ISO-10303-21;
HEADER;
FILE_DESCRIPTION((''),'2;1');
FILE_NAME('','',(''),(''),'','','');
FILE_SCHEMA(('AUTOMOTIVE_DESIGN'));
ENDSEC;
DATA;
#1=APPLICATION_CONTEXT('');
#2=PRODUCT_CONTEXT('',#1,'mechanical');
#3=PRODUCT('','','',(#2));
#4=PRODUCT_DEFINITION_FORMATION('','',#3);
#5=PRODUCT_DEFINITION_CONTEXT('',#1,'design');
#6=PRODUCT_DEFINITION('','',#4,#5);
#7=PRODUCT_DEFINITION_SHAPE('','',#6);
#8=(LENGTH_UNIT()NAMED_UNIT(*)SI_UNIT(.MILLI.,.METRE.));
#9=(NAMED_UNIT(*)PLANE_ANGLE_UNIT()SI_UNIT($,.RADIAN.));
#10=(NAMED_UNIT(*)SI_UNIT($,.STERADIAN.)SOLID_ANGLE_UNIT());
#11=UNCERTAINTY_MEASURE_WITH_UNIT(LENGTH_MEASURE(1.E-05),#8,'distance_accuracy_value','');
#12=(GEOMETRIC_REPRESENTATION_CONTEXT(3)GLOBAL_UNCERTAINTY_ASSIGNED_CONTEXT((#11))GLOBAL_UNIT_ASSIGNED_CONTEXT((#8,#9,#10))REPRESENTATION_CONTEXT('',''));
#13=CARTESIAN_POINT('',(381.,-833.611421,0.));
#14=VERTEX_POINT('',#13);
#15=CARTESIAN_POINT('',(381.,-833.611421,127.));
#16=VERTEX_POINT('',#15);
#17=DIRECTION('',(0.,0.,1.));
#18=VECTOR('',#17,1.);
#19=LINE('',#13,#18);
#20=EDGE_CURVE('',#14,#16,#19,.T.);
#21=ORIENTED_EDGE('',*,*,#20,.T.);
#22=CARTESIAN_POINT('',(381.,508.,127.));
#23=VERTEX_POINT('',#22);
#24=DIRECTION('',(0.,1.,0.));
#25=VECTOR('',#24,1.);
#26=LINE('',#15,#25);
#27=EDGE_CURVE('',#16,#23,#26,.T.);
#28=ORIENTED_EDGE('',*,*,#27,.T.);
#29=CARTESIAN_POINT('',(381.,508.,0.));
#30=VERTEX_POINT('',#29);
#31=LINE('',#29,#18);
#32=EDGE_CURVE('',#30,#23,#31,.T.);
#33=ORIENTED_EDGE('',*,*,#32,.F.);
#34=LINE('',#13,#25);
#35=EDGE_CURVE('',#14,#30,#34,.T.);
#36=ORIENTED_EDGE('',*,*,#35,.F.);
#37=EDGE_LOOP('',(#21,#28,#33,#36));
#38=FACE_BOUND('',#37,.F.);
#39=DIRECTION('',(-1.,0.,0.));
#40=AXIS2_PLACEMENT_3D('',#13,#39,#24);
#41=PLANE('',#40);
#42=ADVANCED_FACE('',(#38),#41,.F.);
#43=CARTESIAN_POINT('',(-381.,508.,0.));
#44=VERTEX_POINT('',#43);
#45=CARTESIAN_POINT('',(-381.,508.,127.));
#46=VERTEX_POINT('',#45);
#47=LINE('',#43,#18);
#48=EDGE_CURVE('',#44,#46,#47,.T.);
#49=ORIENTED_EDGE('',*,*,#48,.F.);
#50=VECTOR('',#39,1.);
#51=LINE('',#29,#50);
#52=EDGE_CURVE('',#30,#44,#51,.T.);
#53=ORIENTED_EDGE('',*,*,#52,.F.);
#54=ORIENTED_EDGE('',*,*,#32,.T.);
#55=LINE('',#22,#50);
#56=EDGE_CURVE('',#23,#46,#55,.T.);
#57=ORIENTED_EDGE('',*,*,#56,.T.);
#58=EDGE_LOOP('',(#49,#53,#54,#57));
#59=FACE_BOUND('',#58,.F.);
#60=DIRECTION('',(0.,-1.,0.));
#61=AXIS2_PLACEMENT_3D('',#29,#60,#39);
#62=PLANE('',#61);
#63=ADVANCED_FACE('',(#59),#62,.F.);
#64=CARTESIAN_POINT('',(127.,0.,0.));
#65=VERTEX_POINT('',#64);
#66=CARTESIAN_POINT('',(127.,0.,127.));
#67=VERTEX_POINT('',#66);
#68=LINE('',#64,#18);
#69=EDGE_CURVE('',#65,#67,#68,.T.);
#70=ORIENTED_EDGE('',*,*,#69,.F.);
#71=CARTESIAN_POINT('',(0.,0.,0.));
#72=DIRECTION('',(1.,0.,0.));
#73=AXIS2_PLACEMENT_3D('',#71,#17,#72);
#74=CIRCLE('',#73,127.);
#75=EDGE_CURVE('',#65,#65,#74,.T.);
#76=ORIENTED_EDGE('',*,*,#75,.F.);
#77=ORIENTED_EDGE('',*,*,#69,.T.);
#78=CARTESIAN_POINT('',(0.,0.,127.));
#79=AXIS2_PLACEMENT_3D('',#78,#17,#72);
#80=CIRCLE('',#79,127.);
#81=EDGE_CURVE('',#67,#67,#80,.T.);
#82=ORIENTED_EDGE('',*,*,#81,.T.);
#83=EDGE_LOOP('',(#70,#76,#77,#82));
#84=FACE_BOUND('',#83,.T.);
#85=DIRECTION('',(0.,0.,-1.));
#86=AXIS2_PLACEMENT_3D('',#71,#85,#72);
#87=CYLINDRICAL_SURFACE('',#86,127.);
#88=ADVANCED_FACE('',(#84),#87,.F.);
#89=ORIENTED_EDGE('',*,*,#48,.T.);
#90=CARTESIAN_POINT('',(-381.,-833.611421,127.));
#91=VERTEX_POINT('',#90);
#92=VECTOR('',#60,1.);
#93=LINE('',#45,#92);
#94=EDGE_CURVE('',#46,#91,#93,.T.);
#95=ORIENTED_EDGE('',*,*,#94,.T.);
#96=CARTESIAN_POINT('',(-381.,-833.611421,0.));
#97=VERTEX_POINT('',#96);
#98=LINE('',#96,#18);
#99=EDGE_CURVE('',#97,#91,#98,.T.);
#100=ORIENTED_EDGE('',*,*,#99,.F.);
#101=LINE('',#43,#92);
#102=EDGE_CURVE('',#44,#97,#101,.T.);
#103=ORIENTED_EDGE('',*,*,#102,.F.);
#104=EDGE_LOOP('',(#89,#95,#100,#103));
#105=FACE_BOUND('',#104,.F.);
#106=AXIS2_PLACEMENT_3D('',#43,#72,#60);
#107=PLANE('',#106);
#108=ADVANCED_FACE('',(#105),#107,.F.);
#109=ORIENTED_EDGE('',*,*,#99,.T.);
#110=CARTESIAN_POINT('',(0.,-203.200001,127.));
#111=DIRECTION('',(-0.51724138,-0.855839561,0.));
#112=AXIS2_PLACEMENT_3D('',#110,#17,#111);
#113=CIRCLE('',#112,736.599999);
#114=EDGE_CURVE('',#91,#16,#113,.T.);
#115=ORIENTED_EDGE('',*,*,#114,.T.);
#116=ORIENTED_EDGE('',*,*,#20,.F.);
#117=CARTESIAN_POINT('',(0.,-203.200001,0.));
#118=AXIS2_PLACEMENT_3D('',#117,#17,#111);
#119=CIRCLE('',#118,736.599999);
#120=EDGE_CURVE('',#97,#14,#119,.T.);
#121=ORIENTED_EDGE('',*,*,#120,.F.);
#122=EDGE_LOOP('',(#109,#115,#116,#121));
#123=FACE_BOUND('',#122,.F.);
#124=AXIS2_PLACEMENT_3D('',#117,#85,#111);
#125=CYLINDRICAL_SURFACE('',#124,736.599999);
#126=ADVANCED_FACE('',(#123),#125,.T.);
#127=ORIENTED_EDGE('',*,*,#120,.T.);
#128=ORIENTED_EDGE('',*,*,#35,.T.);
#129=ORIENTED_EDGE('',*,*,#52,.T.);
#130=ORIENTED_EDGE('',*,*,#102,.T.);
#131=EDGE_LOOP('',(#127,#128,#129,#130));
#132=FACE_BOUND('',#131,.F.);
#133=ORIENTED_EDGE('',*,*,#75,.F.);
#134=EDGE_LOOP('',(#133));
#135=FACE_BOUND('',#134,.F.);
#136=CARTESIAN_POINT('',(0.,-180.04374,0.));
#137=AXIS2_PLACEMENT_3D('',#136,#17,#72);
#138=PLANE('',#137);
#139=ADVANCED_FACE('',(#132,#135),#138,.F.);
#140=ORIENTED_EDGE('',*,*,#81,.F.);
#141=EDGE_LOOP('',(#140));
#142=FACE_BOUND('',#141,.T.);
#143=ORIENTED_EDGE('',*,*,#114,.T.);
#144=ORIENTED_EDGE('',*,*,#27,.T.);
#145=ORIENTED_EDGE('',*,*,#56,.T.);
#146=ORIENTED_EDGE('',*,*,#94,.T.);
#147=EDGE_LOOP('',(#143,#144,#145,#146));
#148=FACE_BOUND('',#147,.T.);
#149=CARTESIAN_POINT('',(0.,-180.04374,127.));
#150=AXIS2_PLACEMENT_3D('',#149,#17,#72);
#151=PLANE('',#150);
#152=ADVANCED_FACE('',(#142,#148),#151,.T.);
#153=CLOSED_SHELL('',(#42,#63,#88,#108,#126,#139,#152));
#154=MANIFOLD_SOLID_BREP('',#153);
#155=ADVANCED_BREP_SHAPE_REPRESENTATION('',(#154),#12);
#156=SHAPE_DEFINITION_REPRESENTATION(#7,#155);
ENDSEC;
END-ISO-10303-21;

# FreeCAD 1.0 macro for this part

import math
import FreeCAD as App
import Part
import Sketcher

V = App.Vector
Q = App.Units.Quantity

doc = App.newDocument("Part")
params = doc.addObject("Spreadsheet::Sheet", "Params")
for row, (alias, value) in enumerate([
    ("sketch1_diameter", "10 in"),
    ("sketch1_radius", "28.9999999 in"),
    ("sketch1_width", "30 in"),
    ("pad1_length", "5 in"),
], start=1):
    params.set(f"A{row}", alias)
    params.set(f"B{row}", "=" + value)
    params.setAlias(f"B{row}", alias)

body = doc.addObject("PartDesign::Body", "Body")

# Sketch on XY plane
sketch1 = body.newObject("Sketcher::SketchObject", "Sketch")
sketch1.AttachmentSupport = (doc.getObject("XY_Plane"), [""])
sketch1.MapMode = "FlatFace"
sketch1.addGeometry([
    Part.LineSegment(V(-381, 508, 0), V(-381, -834, 0)),  # 0
    Part.ArcOfCircle(Part.Circle(V(0, -203, 0), V(0, 0, 1), 737), math.radians(-121), math.radians(-59)),  # 1
    Part.LineSegment(V(381, -834, 0), V(381, 508, 0)),  # 2
    Part.LineSegment(V(381, 508, 0), V(-381, 508, 0)),  # 3
    Part.Circle(V(0, 0, 0), V(0, 0, 1), 127),  # 4
], False)
sketch1.addConstraint([
    Sketcher.Constraint("Coincident", 0, 2, 1, 1),
    Sketcher.Constraint("Coincident", 1, 2, 2, 1),
    Sketcher.Constraint("Coincident", 2, 2, 3, 1),
    Sketcher.Constraint("Coincident", 3, 2, 0, 1),
    Sketcher.Constraint("Vertical", 0),
    Sketcher.Constraint("Vertical", 2),
    Sketcher.Constraint("Horizontal", 3),
    Sketcher.Constraint("Coincident", 4, 3, -1, 1),
    Sketcher.Constraint("PointOnObject", 1, 3, -2),
    Sketcher.Constraint("Equal", 0, 2),
    Sketcher.Constraint("Diameter", 4, Q("10 in")),
    Sketcher.Constraint("Radius", 1, Q("28.9999999 in")),
    Sketcher.Constraint("DistanceX", 3, 2, 3, 1, Q("30 in")),
    Sketcher.Constraint("DistanceY", 1, 3, -1, 1, Q("8.0000001 in")),
    Sketcher.Constraint("DistanceY", -1, 1, 2, 2, Q("20 in")),
])
sketch1.setExpression("Constraints[10]", "Params.sketch1_diameter")
sketch1.setExpression("Constraints[11]", "Params.sketch1_radius")
sketch1.setExpression("Constraints[12]", "Params.sketch1_width")
pad1 = body.newObject("PartDesign::Pad", "Pad")
pad1.Profile = sketch1
pad1.setExpression("Length", "Params.pad1_length")

doc.recompute()
